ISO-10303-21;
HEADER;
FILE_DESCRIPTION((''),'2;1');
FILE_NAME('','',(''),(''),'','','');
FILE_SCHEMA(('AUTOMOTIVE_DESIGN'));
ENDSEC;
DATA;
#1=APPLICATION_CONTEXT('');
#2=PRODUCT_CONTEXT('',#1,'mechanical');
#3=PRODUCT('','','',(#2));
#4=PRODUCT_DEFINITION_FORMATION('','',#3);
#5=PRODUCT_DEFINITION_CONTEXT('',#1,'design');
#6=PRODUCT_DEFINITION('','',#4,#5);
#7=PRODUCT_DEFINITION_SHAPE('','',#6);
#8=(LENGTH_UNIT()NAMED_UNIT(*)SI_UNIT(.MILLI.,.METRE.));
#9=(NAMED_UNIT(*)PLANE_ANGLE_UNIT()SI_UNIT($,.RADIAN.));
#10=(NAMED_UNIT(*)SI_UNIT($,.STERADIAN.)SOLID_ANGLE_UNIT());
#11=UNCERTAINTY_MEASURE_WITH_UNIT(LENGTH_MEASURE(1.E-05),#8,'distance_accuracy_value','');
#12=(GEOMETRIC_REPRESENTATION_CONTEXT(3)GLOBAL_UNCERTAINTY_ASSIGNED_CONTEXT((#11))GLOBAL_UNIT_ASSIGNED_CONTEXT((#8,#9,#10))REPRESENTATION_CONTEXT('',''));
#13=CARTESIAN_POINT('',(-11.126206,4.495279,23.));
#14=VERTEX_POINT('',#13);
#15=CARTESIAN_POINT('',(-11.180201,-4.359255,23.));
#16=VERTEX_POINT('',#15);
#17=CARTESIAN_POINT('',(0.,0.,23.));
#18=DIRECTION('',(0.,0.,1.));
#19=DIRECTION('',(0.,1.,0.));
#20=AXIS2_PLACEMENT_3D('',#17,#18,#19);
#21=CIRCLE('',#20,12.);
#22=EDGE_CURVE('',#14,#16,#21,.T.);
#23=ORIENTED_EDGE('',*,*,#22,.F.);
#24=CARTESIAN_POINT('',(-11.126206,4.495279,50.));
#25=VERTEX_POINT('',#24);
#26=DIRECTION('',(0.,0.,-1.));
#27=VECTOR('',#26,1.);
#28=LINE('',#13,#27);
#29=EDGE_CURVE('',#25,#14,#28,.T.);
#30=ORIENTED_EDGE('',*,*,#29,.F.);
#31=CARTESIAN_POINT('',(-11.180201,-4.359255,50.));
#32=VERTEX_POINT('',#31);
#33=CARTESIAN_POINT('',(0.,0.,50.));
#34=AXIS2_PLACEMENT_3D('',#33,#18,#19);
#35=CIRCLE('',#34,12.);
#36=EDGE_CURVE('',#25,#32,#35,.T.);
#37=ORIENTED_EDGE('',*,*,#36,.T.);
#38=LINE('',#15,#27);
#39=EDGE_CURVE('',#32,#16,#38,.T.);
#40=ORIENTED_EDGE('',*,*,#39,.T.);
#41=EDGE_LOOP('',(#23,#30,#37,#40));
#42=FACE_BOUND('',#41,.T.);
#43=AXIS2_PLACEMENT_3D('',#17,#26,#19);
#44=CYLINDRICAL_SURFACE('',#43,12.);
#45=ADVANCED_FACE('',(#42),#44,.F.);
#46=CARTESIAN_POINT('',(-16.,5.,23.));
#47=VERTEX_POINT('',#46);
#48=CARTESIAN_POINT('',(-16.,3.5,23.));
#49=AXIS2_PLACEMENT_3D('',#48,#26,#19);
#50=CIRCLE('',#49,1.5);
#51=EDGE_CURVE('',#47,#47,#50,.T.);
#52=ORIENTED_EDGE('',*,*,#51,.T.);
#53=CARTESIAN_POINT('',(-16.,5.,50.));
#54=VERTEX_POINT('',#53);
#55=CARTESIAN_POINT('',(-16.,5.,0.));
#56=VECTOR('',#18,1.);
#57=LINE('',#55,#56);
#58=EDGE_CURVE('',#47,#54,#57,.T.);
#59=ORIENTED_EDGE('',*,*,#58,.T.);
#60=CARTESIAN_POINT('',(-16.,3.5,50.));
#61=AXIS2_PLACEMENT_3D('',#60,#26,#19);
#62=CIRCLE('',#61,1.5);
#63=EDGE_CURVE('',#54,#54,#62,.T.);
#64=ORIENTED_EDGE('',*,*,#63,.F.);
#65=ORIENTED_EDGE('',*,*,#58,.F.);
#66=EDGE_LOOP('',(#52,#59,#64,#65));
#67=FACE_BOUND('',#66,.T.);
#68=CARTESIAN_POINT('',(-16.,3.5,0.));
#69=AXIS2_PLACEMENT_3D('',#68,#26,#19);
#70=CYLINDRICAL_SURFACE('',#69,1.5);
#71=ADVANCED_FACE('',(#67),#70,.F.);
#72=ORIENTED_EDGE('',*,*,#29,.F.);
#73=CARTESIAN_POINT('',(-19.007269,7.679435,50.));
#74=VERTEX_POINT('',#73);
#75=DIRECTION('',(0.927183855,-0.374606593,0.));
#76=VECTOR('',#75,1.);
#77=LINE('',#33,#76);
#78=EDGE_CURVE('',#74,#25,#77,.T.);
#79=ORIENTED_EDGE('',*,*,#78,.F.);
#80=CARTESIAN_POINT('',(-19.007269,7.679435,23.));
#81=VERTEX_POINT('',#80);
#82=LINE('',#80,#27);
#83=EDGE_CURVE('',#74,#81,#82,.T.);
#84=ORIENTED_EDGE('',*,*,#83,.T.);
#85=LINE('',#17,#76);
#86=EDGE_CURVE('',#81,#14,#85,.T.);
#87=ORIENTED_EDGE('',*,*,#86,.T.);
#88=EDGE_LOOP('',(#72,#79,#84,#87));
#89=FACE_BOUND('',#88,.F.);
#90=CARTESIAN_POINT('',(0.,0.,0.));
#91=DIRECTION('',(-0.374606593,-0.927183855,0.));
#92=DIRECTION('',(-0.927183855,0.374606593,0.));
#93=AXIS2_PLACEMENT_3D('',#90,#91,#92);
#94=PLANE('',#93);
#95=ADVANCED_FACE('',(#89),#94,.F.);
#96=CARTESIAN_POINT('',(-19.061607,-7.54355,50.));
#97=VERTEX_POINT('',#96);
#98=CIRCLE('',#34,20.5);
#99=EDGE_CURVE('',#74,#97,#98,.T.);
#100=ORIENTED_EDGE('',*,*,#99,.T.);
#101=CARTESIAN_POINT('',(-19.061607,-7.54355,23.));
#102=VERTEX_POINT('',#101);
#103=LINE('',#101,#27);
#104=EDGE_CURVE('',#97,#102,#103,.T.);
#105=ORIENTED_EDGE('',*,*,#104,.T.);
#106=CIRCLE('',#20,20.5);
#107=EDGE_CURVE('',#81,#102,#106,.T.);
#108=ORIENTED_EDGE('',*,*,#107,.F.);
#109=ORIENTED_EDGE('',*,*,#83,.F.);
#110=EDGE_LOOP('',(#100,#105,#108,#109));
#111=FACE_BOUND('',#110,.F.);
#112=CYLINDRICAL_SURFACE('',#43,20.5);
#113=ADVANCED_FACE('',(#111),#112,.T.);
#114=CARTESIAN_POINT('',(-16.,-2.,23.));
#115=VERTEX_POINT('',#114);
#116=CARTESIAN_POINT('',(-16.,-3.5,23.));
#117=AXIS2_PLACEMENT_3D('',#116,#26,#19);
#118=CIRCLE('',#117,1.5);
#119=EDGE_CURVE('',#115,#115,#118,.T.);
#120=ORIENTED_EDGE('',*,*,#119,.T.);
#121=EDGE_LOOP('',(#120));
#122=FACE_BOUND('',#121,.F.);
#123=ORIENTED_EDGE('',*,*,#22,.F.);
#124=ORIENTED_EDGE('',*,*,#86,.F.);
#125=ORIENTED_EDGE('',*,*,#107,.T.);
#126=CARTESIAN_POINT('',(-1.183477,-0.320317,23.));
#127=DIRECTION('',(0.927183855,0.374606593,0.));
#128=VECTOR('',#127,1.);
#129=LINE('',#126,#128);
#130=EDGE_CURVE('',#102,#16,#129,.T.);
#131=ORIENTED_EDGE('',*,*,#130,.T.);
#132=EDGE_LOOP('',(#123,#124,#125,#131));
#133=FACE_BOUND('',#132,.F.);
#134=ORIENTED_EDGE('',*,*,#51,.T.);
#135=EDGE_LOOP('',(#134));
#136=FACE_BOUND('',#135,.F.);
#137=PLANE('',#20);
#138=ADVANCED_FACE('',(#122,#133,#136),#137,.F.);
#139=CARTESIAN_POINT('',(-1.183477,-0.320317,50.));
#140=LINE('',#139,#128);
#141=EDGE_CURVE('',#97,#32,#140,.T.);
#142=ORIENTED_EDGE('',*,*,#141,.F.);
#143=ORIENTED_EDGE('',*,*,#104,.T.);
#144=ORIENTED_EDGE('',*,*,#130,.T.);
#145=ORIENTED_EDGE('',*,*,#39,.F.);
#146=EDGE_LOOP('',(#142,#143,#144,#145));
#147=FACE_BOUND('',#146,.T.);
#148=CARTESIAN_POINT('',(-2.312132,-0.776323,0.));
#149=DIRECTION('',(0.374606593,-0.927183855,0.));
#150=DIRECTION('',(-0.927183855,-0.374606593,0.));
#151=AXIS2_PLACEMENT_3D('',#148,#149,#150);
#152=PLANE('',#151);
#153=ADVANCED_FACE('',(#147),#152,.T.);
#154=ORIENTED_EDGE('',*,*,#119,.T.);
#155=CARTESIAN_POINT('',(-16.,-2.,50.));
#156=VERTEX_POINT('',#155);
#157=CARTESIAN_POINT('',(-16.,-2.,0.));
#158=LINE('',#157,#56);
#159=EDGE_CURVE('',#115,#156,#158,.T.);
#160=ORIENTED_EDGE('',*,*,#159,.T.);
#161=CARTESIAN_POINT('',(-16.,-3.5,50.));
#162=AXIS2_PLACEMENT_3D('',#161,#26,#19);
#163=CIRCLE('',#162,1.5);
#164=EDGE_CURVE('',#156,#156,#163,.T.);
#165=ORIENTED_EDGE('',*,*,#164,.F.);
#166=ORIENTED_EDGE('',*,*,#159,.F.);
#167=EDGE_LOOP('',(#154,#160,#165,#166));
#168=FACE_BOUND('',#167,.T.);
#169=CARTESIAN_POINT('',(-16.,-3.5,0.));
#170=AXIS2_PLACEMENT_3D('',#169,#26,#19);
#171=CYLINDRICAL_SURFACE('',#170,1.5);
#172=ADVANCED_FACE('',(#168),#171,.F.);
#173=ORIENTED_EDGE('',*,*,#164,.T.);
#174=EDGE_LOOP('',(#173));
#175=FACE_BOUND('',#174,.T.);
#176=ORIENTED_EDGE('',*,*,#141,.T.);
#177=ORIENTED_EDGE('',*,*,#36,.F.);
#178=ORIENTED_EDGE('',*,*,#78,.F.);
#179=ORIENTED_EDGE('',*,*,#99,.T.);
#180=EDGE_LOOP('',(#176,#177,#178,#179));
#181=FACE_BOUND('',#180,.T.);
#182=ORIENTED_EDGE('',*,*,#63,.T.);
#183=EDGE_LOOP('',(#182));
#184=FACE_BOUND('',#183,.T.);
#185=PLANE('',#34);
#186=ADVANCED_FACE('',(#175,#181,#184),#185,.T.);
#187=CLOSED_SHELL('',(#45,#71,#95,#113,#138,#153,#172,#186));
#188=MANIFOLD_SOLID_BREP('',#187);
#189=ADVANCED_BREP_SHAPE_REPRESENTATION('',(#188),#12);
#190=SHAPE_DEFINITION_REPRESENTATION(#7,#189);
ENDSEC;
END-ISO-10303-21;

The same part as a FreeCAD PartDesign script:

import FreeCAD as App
import Part
import Sketcher
Q = App.Units.Quantity


def add_polygon(sketch, points):
    """Adds a closed chain of lines whose ends are joined by coincident constraints."""
    first, n = sketch.GeometryCount, len(points)
    for a, b in zip(points, points[1:] + points[:1]):
        sketch.addGeometry(Part.LineSegment(App.Vector(*a, 0), App.Vector(*b, 0)), False)
    for i in range(n):
        sketch.addConstraint(Sketcher.Constraint("Coincident", first + i, 2, first + (i + 1) % n, 1))

doc = App.newDocument("Part")
body = doc.addObject("PartDesign::Body", "Body")

sketch1 = body.newObject("Sketcher::SketchObject", "Sketch")
sketch1.AttachmentSupport = (doc.getObject("XY_Plane"), [""])
sketch1.MapMode = "FlatFace"
sketch1.addGeometry(Part.Circle(App.Vector(-3.5, 16, 0), App.Vector(0, 0, 1), 1.5), False)
sketch1.addConstraint([
    Sketcher.Constraint("Diameter", 0, Q("3 mm")),
    Sketcher.Constraint("DistanceY", -1, 1, 0, 3, Q("16 mm")),
    Sketcher.Constraint("DistanceX", 0, 3, -1, 1, Q("3.5 mm")),
])
pad1 = body.newObject("PartDesign::Pad", "Pad")
pad1.Profile = sketch1
pad1.Length = 60
body2 = doc.addObject("PartDesign::Body", "Body001")
body2.AllowCompound = True

sketch2 = body2.newObject("Sketcher::SketchObject", "Sketch001")
sketch2.AttachmentSupport = (doc.getObject("XY_Plane001"), [""])
sketch2.MapMode = "FlatFace"
sketch2.addGeometry(Part.Circle(App.Vector(3.5, 16, 0), App.Vector(0, 0, 1), 1.5), False)
sketch2.addConstraint([
    Sketcher.Constraint("Diameter", 0, Q("3 mm")),
    Sketcher.Constraint("DistanceY", -1, 1, 0, 3, Q("16 mm")),
    Sketcher.Constraint("DistanceX", -1, 1, 0, 3, Q("3.5 mm")),
])
pad2 = body2.newObject("PartDesign::Pad", "Pad001")
pad2.Profile = sketch2
pad2.Length = 60
doc.recompute()

boolean = body2.newObject("PartDesign::Boolean", "Boolean")
boolean.Type = "Fuse"
boolean.addObjects([body])
body3 = doc.addObject("PartDesign::Body", "Body002")

sketch3 = body3.newObject("Sketcher::SketchObject", "Sketch002")
sketch3.AttachmentSupport = (doc.getObject("XY_Plane002"), [""])
sketch3.MapMode = "FlatFace"
add_polygon(sketch3, [(0, 40), (0, 0), (20, 0), (20, 40)])
sketch3.addConstraint([
    Sketcher.Constraint("Vertical", 0),
    Sketcher.Constraint("Horizontal", 1),
    Sketcher.Constraint("Vertical", 2),
    Sketcher.Constraint("Horizontal", 3),
    Sketcher.Constraint("Coincident", 0, 2, -1, 1),
    Sketcher.Constraint("DistanceX", 1, 1, 1, 2, Q("20 mm")),
    Sketcher.Constraint("DistanceY", 0, 2, 0, 1, Q("40 mm")),
])
pad3 = body3.newObject("PartDesign::Pad", "Pad002")
pad3.Profile = sketch3
pad3.Length = 60
body4 = doc.addObject("PartDesign::Body", "Body003")
doc.recompute()

body3.Placement = App.Placement(App.Vector(0, 0, 0), App.Rotation(App.Vector(0, 0, -1), 22))
boolean2 = body4.newObject("PartDesign::Boolean", "Boolean001")
boolean2.Type = "Fuse"
boolean2.addObjects([body3])
body5 = doc.addObject("PartDesign::Body", "Body004")

sketch4 = body5.newObject("Sketcher::SketchObject", "Sketch003")
sketch4.AttachmentSupport = (doc.getObject("XY_Plane004"), [""])
sketch4.MapMode = "FlatFace"
add_polygon(sketch4, [(0, 40), (0, 0), (20, 0), (20, 40)])
sketch4.addConstraint([
    Sketcher.Constraint("Vertical", 0),
    Sketcher.Constraint("Horizontal", 1),
    Sketcher.Constraint("Vertical", 2),
    Sketcher.Constraint("Horizontal", 3),
    Sketcher.Constraint("Coincident", 0, 2, -1, 1),
    Sketcher.Constraint("DistanceX", 1, 1, 1, 2, Q("20 mm")),
    Sketcher.Constraint("DistanceY", 0, 2, 0, 1, Q("40 mm")),
])
pad4 = body5.newObject("PartDesign::Pad", "Pad003")
pad4.Profile = sketch4
pad4.Length = 60
body6 = doc.addObject("PartDesign::Body", "Body005")
doc.recompute()

body5.Placement = App.Placement(App.Vector(-19.32, -5.18, 0), App.Rotation(App.Vector(0, 0, 1), 22))
boolean3 = body6.newObject("PartDesign::Boolean", "Boolean002")
boolean3.Type = "Fuse"
boolean3.addObjects([body5])
body7 = doc.addObject("PartDesign::Body", "Body006")

sketch5 = body7.newObject("Sketcher::SketchObject", "Sketch004")
sketch5.AttachmentSupport = (doc.getObject("XY_Plane006"), [""])
sketch5.MapMode = "FlatFace"
add_polygon(sketch5, [(-30, 5), (-30, -35), (30, -35), (30, 5)])
sketch5.addConstraint([
    Sketcher.Constraint("Vertical", 0),
    Sketcher.Constraint("Horizontal", 1),
    Sketcher.Constraint("Vertical", 2),
    Sketcher.Constraint("Horizontal", 3),
    Sketcher.Constraint("DistanceX", 1, 1, 1, 2, Q("60 mm")),
    Sketcher.Constraint("DistanceY", 0, 2, 0, 1, Q("40 mm")),
    Sketcher.Constraint("DistanceX", 0, 2, -1, 1, Q("30 mm")),
    Sketcher.Constraint("DistanceY", 0, 2, -1, 1, Q("35 mm")),
])
pad5 = body7.newObject("PartDesign::Pad", "Pad004")
pad5.Profile = sketch5
pad5.Length = 60
body8 = doc.addObject("PartDesign::Body", "Body007")

sketch6 = body8.newObject("Sketcher::SketchObject", "Sketch005")
sketch6.AttachmentSupport = (doc.getObject("XY_Plane007"), [""])
sketch6.MapMode = "FlatFace"
sketch6.AttachmentOffset = App.Placement(App.Vector(0, 0, 23), App.Rotation())
sketch6.addGeometry([
    Part.Circle(App.Vector(0, 0, 0), App.Vector(0, 0, 1), 20.5),
    Part.Circle(App.Vector(0, 0, 0), App.Vector(0, 0, 1), 12),
], False)
sketch6.addConstraint([
    Sketcher.Constraint("Coincident", 0, 3, -1, 1),
    Sketcher.Constraint("Coincident", 1, 3, -1, 1),
    Sketcher.Constraint("Diameter", 0, Q("41 mm")),
    Sketcher.Constraint("Diameter", 1, Q("24 mm")),
])
pad6 = body8.newObject("PartDesign::Pad", "Pad005")
pad6.Profile = sketch6
pad6.Length = 27
doc.recompute()

boolean4 = body8.newObject("PartDesign::Boolean", "Boolean003")
boolean4.Type = "Cut"
boolean4.addObjects([body7])
doc.recompute()

boolean5 = body8.newObject("PartDesign::Boolean", "Boolean004")
boolean5.Type = "Cut"
boolean5.addObjects([body6])
doc.recompute()

boolean6 = body8.newObject("PartDesign::Boolean", "Boolean005")
boolean6.Type = "Cut"
boolean6.addObjects([body4])
doc.recompute()

boolean7 = body8.newObject("PartDesign::Boolean", "Boolean006")
boolean7.Type = "Cut"
boolean7.addObjects([body2])
body9 = doc.addObject("PartDesign::Body", "Body008")
doc.recompute()

body8.Placement = App.Placement(App.Vector(0, 0, 0), App.Rotation(App.Vector(0, 0, 1), 90))
boolean8 = body9.newObject("PartDesign::Boolean", "Boolean007")
boolean8.Type = "Fuse"
boolean8.addObjects([body8])

doc.recompute()
